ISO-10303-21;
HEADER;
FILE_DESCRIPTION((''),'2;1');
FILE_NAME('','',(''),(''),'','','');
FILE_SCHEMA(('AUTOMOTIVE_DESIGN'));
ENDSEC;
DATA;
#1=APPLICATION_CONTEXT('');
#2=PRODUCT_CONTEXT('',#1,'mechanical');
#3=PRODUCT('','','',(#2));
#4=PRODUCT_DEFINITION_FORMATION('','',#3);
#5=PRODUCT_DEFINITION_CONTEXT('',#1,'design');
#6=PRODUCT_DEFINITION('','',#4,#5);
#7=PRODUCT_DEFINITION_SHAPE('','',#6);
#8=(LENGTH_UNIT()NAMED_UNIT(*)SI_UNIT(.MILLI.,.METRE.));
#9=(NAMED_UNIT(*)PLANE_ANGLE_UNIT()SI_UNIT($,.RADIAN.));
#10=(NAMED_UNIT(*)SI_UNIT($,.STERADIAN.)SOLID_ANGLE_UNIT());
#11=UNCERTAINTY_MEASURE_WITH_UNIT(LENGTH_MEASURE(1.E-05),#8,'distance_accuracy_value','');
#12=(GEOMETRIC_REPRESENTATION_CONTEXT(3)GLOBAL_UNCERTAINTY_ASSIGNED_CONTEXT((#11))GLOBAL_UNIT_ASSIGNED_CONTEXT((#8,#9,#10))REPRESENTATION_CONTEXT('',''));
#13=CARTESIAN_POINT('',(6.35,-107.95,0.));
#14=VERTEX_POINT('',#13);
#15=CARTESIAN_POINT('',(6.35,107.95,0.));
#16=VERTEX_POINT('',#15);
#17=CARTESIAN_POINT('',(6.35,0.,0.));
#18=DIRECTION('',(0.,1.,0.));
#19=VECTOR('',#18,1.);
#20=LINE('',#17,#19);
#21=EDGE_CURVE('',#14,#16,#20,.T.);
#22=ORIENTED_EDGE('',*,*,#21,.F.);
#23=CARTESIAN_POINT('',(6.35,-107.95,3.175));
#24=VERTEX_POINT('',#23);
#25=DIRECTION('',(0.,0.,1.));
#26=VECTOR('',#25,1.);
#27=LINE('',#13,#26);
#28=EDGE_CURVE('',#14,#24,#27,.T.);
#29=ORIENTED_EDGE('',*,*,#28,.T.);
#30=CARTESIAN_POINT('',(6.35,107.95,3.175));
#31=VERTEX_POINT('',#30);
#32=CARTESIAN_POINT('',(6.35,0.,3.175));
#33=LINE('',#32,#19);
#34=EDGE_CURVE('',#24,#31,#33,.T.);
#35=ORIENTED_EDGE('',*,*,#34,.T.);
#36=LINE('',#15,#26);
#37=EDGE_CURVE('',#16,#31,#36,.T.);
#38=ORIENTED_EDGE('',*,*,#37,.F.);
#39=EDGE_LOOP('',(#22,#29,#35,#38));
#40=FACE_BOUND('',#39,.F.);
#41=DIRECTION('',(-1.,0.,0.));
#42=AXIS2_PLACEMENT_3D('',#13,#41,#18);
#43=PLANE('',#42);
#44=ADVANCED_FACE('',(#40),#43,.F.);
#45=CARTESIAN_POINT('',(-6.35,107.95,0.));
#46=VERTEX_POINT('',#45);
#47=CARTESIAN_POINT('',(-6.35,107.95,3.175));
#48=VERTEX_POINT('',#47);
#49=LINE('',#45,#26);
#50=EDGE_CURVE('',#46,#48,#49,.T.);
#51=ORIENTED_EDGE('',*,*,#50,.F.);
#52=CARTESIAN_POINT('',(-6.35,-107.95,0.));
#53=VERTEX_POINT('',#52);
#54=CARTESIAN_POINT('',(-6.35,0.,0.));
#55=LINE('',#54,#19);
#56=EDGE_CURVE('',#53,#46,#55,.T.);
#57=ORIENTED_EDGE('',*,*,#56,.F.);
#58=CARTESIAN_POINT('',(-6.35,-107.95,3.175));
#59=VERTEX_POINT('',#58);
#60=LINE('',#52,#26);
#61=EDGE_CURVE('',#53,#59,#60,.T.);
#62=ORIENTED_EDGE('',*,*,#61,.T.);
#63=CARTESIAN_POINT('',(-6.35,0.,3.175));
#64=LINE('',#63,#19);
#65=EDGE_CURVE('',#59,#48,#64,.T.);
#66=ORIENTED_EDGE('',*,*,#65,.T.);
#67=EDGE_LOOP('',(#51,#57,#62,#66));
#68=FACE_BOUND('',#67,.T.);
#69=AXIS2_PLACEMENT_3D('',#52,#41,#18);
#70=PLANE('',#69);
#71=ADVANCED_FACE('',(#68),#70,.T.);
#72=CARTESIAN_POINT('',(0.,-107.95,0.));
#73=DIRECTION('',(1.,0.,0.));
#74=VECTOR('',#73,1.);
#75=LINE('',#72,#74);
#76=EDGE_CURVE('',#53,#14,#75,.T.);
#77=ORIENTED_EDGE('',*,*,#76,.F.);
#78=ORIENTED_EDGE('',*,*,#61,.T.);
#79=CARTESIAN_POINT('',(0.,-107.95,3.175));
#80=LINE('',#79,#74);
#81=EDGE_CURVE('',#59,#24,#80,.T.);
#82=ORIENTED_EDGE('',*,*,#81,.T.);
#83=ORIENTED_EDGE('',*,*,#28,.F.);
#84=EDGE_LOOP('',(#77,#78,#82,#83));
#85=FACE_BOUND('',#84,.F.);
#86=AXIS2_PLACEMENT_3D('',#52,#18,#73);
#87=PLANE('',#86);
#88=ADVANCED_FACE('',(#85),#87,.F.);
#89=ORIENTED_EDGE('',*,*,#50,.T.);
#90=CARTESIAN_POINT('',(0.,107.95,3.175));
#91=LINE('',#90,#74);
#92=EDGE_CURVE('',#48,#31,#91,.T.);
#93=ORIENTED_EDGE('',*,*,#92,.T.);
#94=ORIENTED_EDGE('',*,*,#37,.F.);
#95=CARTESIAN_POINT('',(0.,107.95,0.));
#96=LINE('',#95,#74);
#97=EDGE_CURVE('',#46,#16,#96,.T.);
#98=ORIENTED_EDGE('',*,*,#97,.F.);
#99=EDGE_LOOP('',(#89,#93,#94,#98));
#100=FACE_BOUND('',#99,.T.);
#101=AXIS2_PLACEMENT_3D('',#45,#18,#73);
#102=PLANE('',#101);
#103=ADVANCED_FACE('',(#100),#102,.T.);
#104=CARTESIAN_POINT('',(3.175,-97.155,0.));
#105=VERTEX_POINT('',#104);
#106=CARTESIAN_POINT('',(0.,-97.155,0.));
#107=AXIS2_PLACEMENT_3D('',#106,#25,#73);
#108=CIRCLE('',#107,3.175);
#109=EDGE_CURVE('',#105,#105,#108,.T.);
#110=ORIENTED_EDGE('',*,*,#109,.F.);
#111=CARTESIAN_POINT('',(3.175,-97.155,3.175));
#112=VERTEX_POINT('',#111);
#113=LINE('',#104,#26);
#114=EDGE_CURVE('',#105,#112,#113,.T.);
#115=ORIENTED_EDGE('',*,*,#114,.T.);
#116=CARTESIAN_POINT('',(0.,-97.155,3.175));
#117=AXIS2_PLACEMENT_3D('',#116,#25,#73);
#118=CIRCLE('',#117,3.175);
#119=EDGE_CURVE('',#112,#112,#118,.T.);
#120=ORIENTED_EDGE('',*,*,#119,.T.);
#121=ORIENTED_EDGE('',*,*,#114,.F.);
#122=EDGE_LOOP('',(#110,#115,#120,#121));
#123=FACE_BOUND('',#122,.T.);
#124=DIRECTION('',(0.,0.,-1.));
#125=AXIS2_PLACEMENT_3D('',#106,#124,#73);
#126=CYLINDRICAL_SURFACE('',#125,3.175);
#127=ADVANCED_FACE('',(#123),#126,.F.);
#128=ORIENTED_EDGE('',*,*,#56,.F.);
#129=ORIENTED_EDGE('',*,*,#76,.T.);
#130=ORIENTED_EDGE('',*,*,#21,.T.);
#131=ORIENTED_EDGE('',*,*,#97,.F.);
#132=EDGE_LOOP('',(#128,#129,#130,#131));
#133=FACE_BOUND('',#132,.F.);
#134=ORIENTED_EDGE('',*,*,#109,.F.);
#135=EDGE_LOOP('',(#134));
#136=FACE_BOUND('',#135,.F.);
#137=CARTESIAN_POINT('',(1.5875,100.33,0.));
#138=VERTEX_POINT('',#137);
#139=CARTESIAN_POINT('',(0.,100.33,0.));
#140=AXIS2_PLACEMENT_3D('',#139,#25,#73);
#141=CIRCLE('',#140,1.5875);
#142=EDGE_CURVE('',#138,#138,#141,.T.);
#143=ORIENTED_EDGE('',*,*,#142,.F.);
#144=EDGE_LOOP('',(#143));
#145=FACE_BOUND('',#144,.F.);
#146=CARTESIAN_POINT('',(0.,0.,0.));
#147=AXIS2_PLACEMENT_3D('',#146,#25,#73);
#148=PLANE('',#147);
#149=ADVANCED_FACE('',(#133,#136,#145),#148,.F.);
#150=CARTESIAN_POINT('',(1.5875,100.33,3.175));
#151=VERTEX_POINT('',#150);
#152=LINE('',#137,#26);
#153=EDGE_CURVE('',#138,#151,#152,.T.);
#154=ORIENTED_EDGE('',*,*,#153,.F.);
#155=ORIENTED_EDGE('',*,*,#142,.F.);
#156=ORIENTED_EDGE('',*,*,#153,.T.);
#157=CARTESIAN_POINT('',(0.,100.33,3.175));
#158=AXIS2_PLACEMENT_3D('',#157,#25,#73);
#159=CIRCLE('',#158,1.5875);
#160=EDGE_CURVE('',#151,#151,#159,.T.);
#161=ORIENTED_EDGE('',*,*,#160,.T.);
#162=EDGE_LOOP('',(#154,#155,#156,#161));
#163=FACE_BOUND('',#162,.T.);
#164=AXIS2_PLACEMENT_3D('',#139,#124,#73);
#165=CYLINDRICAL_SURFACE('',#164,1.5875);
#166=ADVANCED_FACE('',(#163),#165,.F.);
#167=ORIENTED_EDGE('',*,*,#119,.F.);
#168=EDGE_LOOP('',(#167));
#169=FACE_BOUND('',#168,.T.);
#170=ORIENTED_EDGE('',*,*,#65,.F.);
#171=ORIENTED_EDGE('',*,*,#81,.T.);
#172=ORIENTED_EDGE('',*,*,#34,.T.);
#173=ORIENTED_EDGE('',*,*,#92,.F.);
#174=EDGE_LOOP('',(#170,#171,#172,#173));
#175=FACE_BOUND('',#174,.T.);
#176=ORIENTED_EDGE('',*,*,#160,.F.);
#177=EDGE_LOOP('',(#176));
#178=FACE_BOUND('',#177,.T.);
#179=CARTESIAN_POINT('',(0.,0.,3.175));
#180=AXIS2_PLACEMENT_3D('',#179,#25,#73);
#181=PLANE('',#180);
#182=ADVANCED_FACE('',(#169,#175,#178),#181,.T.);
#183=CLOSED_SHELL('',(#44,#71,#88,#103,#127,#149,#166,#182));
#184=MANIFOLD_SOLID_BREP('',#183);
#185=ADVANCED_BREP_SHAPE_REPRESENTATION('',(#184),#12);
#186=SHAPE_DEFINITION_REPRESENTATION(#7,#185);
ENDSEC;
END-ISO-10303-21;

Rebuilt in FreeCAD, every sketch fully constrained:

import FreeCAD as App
import Part
import Sketcher
Q = App.Units.Quantity

doc = App.newDocument("Part")
params = doc.addObject("Spreadsheet::Sheet", "Params")
for row, (alias, value) in enumerate([
    ("sketch1_diameter", "0.25 in"),
    ("sketch1_diameter2", "0.125 in"),
    ("sketch1_width", "0.5 in"),
    ("sketch1_height", "8.5 in"),
    ("pad1_length", "0.125 in"),
], start=1):
    params.set(f"A{row}", alias)
    params.set(f"B{row}", "=" + value)
    params.setAlias(f"B{row}", alias)

body = doc.addObject("PartDesign::Body", "Body")

sketch1 = body.newObject("Sketcher::SketchObject", "Sketch")
sketch1.AttachmentSupport = (doc.getObject("XY_Plane"), [""])
sketch1.MapMode = "FlatFace"
sketch1.addGeometry([
    Part.LineSegment(App.Vector(-6.35, 107.95, 0), App.Vector(-6.35, -107.95, 0)),
    Part.LineSegment(App.Vector(-6.35, -107.95, 0), App.Vector(6.35, -107.95, 0)),
    Part.LineSegment(App.Vector(6.35, -107.95, 0), App.Vector(6.35, 107.95, 0)),
    Part.LineSegment(App.Vector(6.35, 107.95, 0), App.Vector(-6.35, 107.95, 0)),
    Part.Circle(App.Vector(0, -97.155, 0), App.Vector(0, 0, 1), 3.175),
    Part.Circle(App.Vector(0, 100.33, 0), App.Vector(0, 0, 1), 1.5875),
], False)
sketch1.addConstraint([
    Sketcher.Constraint("Coincident", 0, 2, 1, 1),
    Sketcher.Constraint("Coincident", 1, 2, 2, 1),
    Sketcher.Constraint("Coincident", 2, 2, 3, 1),
    Sketcher.Constraint("Coincident", 3, 2, 0, 1),
    Sketcher.Constraint("Vertical", 0),
    Sketcher.Constraint("Horizontal", 1),
    Sketcher.Constraint("Vertical", 2),
    Sketcher.Constraint("Horizontal", 3),
    Sketcher.Constraint("Symmetric", 0, 2, 2, 2, -1, 1),
    Sketcher.Constraint("PointOnObject", 4, 3, -2),
    Sketcher.Constraint("PointOnObject", 5, 3, -2),
    Sketcher.Constraint("Diameter", 4, Q("0.25 in")),
    Sketcher.Constraint("Diameter", 5, Q("0.125 in")),
    Sketcher.Constraint("DistanceX", 1, 1, 1, 2, Q("0.5 in")),
    Sketcher.Constraint("DistanceY", 0, 2, 0, 1, Q("8.5 in")),
    Sketcher.Constraint("DistanceY", 0, 2, 5, 3, Q("8.2 in")),
    Sketcher.Constraint("DistanceY", 4, 3, -1, 1, Q("3.825 in")),
])
sketch1.setExpression("Constraints[11]", "Params.sketch1_diameter")
sketch1.setExpression("Constraints[12]", "Params.sketch1_diameter2")
sketch1.setExpression("Constraints[13]", "Params.sketch1_width")
sketch1.setExpression("Constraints[14]", "Params.sketch1_height")
pad1 = body.newObject("PartDesign::Pad", "Pad")
pad1.Profile = sketch1
pad1.setExpression("Length", "Params.pad1_length")

doc.recompute()
